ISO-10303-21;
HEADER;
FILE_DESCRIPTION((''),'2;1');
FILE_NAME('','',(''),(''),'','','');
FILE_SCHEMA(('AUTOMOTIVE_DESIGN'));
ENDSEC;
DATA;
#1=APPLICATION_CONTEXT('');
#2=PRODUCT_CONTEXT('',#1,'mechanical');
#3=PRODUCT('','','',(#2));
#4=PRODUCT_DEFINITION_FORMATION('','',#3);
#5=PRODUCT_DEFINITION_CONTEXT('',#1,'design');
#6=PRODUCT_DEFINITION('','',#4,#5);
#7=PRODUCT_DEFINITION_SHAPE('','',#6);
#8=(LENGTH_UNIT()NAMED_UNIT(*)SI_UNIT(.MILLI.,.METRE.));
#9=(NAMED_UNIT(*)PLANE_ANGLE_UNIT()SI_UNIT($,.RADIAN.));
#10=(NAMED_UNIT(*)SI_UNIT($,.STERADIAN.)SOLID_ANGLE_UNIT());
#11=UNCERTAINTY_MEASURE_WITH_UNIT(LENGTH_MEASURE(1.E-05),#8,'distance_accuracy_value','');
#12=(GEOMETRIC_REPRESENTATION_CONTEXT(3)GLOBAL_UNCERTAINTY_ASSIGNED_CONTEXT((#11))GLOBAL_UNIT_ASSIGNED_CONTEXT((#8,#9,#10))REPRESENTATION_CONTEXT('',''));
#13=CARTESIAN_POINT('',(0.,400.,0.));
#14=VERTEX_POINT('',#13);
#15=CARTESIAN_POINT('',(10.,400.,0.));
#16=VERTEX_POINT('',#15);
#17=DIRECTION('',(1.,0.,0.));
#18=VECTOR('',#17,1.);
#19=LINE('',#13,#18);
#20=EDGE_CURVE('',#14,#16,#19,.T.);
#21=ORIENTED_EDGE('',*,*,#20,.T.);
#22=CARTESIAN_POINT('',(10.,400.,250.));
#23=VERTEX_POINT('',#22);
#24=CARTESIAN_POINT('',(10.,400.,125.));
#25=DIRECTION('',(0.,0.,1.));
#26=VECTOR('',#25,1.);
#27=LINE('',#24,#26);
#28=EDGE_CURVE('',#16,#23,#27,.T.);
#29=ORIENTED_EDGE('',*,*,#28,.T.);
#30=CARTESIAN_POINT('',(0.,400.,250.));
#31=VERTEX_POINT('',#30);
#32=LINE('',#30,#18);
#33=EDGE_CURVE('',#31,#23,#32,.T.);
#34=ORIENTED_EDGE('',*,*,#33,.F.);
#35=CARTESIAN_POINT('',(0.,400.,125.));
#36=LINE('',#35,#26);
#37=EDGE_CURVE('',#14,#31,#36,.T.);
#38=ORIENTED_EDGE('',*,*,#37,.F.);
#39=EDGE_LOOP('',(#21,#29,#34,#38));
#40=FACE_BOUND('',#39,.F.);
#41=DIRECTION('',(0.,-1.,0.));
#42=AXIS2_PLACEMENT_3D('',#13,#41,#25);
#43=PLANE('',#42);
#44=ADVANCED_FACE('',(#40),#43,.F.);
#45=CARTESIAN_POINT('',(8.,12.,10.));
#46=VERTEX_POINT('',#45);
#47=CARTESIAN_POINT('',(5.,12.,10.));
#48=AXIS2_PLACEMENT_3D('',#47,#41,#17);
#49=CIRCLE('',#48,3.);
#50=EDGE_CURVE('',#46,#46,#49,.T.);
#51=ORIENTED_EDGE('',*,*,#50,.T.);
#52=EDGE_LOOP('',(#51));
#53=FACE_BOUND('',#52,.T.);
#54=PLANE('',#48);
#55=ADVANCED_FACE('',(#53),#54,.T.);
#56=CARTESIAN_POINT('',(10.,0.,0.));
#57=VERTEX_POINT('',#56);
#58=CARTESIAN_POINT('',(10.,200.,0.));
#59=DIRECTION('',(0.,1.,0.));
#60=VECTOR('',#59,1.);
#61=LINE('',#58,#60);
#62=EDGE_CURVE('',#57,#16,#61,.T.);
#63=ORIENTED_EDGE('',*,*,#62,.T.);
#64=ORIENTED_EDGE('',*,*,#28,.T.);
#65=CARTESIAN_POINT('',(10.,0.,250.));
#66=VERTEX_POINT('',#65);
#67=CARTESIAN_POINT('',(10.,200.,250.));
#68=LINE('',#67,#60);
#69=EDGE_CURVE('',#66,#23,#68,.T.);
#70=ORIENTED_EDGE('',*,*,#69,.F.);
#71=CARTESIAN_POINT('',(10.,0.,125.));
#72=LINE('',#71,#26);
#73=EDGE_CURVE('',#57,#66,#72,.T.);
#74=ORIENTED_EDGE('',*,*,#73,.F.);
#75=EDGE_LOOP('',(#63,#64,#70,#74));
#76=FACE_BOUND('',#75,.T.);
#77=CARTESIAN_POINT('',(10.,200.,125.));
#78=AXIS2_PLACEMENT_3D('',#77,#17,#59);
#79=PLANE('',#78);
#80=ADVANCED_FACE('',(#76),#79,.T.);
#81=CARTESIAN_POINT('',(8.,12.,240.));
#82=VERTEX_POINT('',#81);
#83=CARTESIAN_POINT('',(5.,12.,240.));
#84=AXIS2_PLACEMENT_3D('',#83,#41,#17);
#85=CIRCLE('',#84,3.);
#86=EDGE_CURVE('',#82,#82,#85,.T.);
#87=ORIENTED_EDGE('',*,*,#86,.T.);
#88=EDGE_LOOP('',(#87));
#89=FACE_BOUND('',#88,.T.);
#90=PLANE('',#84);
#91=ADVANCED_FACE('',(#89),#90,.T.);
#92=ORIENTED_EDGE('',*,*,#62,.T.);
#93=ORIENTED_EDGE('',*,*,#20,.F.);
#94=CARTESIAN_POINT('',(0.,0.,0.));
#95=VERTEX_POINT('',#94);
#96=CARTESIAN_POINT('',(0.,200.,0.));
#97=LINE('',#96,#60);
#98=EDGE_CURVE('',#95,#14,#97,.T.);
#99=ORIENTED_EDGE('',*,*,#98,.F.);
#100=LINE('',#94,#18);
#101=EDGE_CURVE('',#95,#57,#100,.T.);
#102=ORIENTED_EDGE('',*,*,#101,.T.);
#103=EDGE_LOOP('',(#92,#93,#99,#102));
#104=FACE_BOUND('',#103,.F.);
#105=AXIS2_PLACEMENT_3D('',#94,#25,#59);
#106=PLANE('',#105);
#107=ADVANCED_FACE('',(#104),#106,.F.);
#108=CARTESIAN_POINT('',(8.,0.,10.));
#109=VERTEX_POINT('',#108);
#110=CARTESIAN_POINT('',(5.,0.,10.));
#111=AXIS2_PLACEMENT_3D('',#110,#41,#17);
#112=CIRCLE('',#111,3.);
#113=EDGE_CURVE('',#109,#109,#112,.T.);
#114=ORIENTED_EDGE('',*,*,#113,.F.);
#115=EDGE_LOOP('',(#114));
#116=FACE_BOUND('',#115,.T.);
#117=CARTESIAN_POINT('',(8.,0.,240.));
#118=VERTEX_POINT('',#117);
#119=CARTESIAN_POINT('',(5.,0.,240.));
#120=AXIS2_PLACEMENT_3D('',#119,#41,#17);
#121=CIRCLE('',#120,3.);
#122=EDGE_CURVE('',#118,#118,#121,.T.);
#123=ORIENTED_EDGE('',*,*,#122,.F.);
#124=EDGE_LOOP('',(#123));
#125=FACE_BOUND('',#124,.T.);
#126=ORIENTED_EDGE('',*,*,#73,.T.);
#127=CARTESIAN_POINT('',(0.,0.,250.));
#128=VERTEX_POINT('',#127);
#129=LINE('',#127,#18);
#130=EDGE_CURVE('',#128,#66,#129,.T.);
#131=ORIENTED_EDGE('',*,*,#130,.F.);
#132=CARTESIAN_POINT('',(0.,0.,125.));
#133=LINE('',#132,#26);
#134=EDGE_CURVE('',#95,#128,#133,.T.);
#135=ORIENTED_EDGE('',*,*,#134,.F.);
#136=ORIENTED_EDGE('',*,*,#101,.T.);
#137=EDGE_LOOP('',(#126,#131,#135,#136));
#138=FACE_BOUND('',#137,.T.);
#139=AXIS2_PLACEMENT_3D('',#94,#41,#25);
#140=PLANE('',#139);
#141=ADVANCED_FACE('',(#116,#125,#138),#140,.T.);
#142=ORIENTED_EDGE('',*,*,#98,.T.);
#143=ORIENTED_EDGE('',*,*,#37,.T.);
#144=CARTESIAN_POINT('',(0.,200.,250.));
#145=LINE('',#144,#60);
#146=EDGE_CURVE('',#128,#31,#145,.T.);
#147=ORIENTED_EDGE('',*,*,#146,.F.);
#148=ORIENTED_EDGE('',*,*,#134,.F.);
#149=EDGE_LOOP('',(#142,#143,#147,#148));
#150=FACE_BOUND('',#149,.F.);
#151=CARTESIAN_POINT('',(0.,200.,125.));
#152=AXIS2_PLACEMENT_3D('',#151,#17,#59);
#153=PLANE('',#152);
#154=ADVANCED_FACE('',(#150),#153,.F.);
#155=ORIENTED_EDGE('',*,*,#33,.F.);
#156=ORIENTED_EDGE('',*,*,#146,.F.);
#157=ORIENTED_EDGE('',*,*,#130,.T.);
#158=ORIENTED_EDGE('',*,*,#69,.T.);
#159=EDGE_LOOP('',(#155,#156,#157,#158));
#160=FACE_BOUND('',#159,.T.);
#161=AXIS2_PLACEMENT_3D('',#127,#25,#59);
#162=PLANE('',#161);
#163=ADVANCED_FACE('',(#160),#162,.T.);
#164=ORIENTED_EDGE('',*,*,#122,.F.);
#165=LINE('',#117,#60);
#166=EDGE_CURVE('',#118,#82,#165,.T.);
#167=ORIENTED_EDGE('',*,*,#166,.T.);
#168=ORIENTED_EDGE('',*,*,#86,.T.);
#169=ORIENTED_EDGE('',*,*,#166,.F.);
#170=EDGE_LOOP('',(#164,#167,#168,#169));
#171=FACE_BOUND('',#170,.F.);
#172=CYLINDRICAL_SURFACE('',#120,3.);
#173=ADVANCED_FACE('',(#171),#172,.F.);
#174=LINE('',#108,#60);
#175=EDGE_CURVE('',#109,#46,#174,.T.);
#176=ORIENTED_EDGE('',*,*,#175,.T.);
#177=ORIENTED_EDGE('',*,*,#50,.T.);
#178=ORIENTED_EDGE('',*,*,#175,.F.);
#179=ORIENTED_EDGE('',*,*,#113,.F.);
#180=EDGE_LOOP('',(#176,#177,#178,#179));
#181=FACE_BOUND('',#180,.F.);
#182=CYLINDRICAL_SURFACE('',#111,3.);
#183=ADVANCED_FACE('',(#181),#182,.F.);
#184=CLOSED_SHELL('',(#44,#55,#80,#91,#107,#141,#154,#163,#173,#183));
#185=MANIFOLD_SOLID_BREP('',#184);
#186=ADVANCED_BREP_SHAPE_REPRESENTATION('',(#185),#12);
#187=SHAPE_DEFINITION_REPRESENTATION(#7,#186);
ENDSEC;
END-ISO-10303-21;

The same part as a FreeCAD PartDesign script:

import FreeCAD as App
import Part
import Sketcher

V = App.Vector
Q = App.Units.Quantity

doc = App.newDocument("Part")
body = doc.addObject("PartDesign::Body", "Body")

# Sketch on YZ plane
sketch1 = doc.addObject("Sketcher::SketchObject", "Sketch")
body.addObject(sketch1)
sketch1.AttachmentSupport = (doc.YZ_Plane, [""])
sketch1.MapMode = "FlatFace"
sketch1.addGeometry([
    Part.LineSegment(V(0, 250, 0), V(0, 0, 0)),
    Part.LineSegment(V(0, 0, 0), V(400, 0, 0)),
    Part.LineSegment(V(400, 0, 0), V(400, 250, 0)),
    Part.LineSegment(V(400, 250, 0), V(0, 250, 0)),
], False)
sketch1.addConstraint([
    Sketcher.Constraint("Coincident", 0, 2, 1, 1),
    Sketcher.Constraint("Coincident", 1, 2, 2, 1),
    Sketcher.Constraint("Coincident", 2, 2, 3, 1),
    Sketcher.Constraint("Coincident", 3, 2, 0, 1),
    Sketcher.Constraint("Vertical", 0),
    Sketcher.Constraint("Horizontal", 1),
    Sketcher.Constraint("Vertical", 2),
    Sketcher.Constraint("Horizontal", 3),
    Sketcher.Constraint("Coincident", 0, 2, -1, 1),
    Sketcher.Constraint("DistanceX", 1, 1, 1, 2, Q("400 mm")),
    Sketcher.Constraint("DistanceY", 0, 2, 0, 1, Q("250 mm")),
])
pad1 = doc.addObject("PartDesign::Pad", "Pad")
body.addObject(pad1)
pad1.Profile = sketch1
pad1.Length = 10

# Sketch on XZ plane
sketch2 = doc.addObject("Sketcher::SketchObject", "Sketch001")
body.addObject(sketch2)
sketch2.AttachmentSupport = (doc.XZ_Plane, [""])
sketch2.MapMode = "FlatFace"
sketch2.addGeometry([
    Part.Circle(V(5, 240, 0), V(0, 0, 1), 3),
    Part.Circle(V(5, 10, 0), V(0, 0, 1), 3),
], False)
sketch2.addConstraint([
    Sketcher.Constraint("Equal", 0, 1),
    Sketcher.Constraint("Vertical", 0, 3, 1, 3),
    Sketcher.Constraint("Diameter", 0, Q("6 mm")),
    Sketcher.Constraint("DistanceX", -1, 1, 0, 3, Q("5 mm")),
    Sketcher.Constraint("DistanceY", -1, 1, 0, 3, Q("240 mm")),
    Sketcher.Constraint("DistanceY", -1, 1, 1, 3, Q("10 mm")),
])
pocket1 = doc.addObject("PartDesign::Pocket", "Pocket")
body.addObject(pocket1)
pocket1.Profile = sketch2
pocket1.Length = 12

doc.recompute()
